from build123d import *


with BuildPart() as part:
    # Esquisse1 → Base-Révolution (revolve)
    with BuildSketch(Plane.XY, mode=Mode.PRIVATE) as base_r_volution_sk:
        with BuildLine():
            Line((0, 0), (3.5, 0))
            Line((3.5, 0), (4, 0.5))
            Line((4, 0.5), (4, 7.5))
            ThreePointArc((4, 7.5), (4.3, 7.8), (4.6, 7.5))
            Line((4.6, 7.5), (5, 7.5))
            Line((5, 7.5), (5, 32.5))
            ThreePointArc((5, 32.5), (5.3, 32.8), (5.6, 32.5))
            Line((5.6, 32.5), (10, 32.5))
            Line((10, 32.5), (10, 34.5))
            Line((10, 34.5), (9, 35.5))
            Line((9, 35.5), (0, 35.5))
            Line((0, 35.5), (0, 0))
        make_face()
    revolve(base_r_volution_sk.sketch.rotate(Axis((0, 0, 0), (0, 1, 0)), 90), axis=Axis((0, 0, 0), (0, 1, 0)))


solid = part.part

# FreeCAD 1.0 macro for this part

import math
import FreeCAD as App
import Part
import Sketcher

V = App.Vector
Q = App.Units.Quantity

doc = App.newDocument("Part")
body = doc.addObject("PartDesign::Body", "Body")

# Sketch on XY plane
sketch1 = body.newObject("Sketcher::SketchObject", "Sketch")
sketch1.AttachmentSupport = (doc.getObject("XY_Plane"), [""])
sketch1.MapMode = "FlatFace"
sketch1.addGeometry([
    Part.LineSegment(V(0, 0, 0), V(3.5, 0, 0)),  # 0
    Part.LineSegment(V(3.5, 0, 0), V(4, 0.5, 0)),  # 1
    Part.LineSegment(V(4, 0.5, 0), V(4, 7.5, 0)),  # 2
    Part.ArcOfCircle(Part.Circle(V(4.3, 7.5, 0), V(0, 0, 1), 0.3), math.radians(0), math.radians(180)),  # 3
    Part.LineSegment(V(4.6, 7.5, 0), V(5, 7.5, 0)),  # 4
    Part.LineSegment(V(5, 7.5, 0), V(5, 32.5, 0)),  # 5
    Part.ArcOfCircle(Part.Circle(V(5.3, 32.5, 0), V(0, 0, 1), 0.3), math.radians(0), math.radians(180)),  # 6
    Part.LineSegment(V(5.6, 32.5, 0), V(10, 32.5, 0)),  # 7
    Part.LineSegment(V(10, 32.5, 0), V(10, 34.5, 0)),  # 8
    Part.LineSegment(V(10, 34.5, 0), V(9, 35.5, 0)),  # 9
    Part.LineSegment(V(9, 35.5, 0), V(0, 35.5, 0)),  # 10
    Part.LineSegment(V(0, 35.5, 0), V(0, 0, 0)),  # 11
], False)
sketch1.addConstraint([
    Sketcher.Constraint("Coincident", 0, 2, 1, 1),
    Sketcher.Constraint("Coincident", 1, 2, 2, 1),
    Sketcher.Constraint("Tangent", 2, 2, 3, 2),
    Sketcher.Constraint("Coincident", 3, 1, 4, 1),
    Sketcher.Constraint("Coincident", 4, 2, 5, 1),
    Sketcher.Constraint("Tangent", 5, 2, 6, 2),
    Sketcher.Constraint("Coincident", 6, 1, 7, 1),
    Sketcher.Constraint("Coincident", 7, 2, 8, 1),
    Sketcher.Constraint("Coincident", 8, 2, 9, 1),
    Sketcher.Constraint("Coincident", 9, 2, 10, 1),
    Sketcher.Constraint("Coincident", 10, 2, 11, 1),
    Sketcher.Constraint("Coincident", 11, 2, 0, 1),
    Sketcher.Constraint("Horizontal", 0),
    Sketcher.Constraint("Vertical", 2),
    Sketcher.Constraint("Horizontal", 4),
    Sketcher.Constraint("Vertical", 5),
    Sketcher.Constraint("Horizontal", 7),
    Sketcher.Constraint("Vertical", 8),
    Sketcher.Constraint("Horizontal", 10),
    Sketcher.Constraint("Vertical", 11),
    Sketcher.Constraint("Coincident", 11, 2, -1, 1),
    Sketcher.Constraint("Equal", 3, 6),
    Sketcher.Constraint("Perpendicular", 1, 9),
    Sketcher.Constraint("Horizontal", 2, 2, 3, 1),
    Sketcher.Constraint("Horizontal", 5, 2, 6, 1),
    Sketcher.Constraint("Radius", 3, 0.3),
    Sketcher.Constraint("DistanceX", 10, 2, 10, 1, 9.0),
    Sketcher.Constraint("DistanceY", 2, 1, 2, 2, 7.0),
    Sketcher.Constraint("DistanceY", 5, 1, 5, 2, 25.0),
    Sketcher.Constraint("DistanceY", 8, 1, 8, 2, 2.0),
    Sketcher.Constraint("Angle", 1, Q("45 deg")),
    Sketcher.Constraint("DistanceX", 0, 1, 0, 2, 3.5),
    Sketcher.Constraint("DistanceX", 4, 1, 4, 2, 0.4),
    Sketcher.Constraint("DistanceX", 7, 1, 7, 2, 4.4),
    Sketcher.Constraint("DistanceY", 11, 2, 11, 1, 35.5),
])
revolution = body.newObject("PartDesign::Revolution", "Revolution")
revolution.Profile = sketch1
revolution.ReferenceAxis = (sketch1, ["V_Axis"])
revolution.Angle = 360

doc.recompute()
